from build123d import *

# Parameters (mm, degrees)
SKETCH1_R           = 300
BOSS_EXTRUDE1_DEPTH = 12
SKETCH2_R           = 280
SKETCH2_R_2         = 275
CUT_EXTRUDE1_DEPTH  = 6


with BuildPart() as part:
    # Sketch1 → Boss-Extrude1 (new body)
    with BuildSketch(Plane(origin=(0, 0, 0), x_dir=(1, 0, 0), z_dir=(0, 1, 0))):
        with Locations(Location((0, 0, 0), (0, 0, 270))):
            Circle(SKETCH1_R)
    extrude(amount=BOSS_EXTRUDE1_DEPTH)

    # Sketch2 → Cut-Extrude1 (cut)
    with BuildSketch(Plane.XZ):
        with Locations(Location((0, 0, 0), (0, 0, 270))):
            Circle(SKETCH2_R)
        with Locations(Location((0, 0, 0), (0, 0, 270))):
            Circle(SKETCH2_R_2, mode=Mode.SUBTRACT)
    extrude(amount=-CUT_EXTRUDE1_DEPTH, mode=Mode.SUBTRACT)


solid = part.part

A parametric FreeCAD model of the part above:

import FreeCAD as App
import Part
import Sketcher
from FreeCAD import Vector

doc = App.newDocument("Part")
body = doc.addObject("PartDesign::Body", "Body")

# Sketch on XZ plane
sketch1 = doc.addObject("Sketcher::SketchObject", "Sketch")
body.addObject(sketch1)
sketch1.AttachmentSupport = (doc.XZ_Plane, [""])
sketch1.MapMode = "FlatFace"
sketch1.addGeometry(Part.Circle(Vector(0, 0, 0), Vector(0, 0, 1), 300), False)
sketch1.addConstraint(Sketcher.Constraint("Coincident", 0, 3, -1, 1))
sketch1.addConstraint(Sketcher.Constraint("Diameter", 0, 600.0))
pad1 = doc.addObject("PartDesign::Pad", "Pad")
body.addObject(pad1)
pad1.Profile = sketch1
pad1.Length = 12
pad1.Reversed = True

# Sketch on XZ plane
sketch2 = doc.addObject("Sketcher::SketchObject", "Sketch001")
body.addObject(sketch2)
sketch2.AttachmentSupport = (doc.XZ_Plane, [""])
sketch2.MapMode = "FlatFace"
sketch2.addGeometry(Part.Circle(Vector(0, 0, 0), Vector(0, 0, 1), 280), False)
sketch2.addGeometry(Part.Circle(Vector(0, 0, 0), Vector(0, 0, 1), 275), False)
sketch2.addConstraint(Sketcher.Constraint("Coincident", 0, 3, -1, 1))
sketch2.addConstraint(Sketcher.Constraint("Coincident", 1, 3, -1, 1))
sketch2.addConstraint(Sketcher.Constraint("Diameter", 0, 560.0))
sketch2.addConstraint(Sketcher.Constraint("Diameter", 1, 550.0))
pocket1 = doc.addObject("PartDesign::Pocket", "Pocket")
body.addObject(pocket1)
pocket1.Profile = sketch2
pocket1.Length = 6

doc.recompute()
